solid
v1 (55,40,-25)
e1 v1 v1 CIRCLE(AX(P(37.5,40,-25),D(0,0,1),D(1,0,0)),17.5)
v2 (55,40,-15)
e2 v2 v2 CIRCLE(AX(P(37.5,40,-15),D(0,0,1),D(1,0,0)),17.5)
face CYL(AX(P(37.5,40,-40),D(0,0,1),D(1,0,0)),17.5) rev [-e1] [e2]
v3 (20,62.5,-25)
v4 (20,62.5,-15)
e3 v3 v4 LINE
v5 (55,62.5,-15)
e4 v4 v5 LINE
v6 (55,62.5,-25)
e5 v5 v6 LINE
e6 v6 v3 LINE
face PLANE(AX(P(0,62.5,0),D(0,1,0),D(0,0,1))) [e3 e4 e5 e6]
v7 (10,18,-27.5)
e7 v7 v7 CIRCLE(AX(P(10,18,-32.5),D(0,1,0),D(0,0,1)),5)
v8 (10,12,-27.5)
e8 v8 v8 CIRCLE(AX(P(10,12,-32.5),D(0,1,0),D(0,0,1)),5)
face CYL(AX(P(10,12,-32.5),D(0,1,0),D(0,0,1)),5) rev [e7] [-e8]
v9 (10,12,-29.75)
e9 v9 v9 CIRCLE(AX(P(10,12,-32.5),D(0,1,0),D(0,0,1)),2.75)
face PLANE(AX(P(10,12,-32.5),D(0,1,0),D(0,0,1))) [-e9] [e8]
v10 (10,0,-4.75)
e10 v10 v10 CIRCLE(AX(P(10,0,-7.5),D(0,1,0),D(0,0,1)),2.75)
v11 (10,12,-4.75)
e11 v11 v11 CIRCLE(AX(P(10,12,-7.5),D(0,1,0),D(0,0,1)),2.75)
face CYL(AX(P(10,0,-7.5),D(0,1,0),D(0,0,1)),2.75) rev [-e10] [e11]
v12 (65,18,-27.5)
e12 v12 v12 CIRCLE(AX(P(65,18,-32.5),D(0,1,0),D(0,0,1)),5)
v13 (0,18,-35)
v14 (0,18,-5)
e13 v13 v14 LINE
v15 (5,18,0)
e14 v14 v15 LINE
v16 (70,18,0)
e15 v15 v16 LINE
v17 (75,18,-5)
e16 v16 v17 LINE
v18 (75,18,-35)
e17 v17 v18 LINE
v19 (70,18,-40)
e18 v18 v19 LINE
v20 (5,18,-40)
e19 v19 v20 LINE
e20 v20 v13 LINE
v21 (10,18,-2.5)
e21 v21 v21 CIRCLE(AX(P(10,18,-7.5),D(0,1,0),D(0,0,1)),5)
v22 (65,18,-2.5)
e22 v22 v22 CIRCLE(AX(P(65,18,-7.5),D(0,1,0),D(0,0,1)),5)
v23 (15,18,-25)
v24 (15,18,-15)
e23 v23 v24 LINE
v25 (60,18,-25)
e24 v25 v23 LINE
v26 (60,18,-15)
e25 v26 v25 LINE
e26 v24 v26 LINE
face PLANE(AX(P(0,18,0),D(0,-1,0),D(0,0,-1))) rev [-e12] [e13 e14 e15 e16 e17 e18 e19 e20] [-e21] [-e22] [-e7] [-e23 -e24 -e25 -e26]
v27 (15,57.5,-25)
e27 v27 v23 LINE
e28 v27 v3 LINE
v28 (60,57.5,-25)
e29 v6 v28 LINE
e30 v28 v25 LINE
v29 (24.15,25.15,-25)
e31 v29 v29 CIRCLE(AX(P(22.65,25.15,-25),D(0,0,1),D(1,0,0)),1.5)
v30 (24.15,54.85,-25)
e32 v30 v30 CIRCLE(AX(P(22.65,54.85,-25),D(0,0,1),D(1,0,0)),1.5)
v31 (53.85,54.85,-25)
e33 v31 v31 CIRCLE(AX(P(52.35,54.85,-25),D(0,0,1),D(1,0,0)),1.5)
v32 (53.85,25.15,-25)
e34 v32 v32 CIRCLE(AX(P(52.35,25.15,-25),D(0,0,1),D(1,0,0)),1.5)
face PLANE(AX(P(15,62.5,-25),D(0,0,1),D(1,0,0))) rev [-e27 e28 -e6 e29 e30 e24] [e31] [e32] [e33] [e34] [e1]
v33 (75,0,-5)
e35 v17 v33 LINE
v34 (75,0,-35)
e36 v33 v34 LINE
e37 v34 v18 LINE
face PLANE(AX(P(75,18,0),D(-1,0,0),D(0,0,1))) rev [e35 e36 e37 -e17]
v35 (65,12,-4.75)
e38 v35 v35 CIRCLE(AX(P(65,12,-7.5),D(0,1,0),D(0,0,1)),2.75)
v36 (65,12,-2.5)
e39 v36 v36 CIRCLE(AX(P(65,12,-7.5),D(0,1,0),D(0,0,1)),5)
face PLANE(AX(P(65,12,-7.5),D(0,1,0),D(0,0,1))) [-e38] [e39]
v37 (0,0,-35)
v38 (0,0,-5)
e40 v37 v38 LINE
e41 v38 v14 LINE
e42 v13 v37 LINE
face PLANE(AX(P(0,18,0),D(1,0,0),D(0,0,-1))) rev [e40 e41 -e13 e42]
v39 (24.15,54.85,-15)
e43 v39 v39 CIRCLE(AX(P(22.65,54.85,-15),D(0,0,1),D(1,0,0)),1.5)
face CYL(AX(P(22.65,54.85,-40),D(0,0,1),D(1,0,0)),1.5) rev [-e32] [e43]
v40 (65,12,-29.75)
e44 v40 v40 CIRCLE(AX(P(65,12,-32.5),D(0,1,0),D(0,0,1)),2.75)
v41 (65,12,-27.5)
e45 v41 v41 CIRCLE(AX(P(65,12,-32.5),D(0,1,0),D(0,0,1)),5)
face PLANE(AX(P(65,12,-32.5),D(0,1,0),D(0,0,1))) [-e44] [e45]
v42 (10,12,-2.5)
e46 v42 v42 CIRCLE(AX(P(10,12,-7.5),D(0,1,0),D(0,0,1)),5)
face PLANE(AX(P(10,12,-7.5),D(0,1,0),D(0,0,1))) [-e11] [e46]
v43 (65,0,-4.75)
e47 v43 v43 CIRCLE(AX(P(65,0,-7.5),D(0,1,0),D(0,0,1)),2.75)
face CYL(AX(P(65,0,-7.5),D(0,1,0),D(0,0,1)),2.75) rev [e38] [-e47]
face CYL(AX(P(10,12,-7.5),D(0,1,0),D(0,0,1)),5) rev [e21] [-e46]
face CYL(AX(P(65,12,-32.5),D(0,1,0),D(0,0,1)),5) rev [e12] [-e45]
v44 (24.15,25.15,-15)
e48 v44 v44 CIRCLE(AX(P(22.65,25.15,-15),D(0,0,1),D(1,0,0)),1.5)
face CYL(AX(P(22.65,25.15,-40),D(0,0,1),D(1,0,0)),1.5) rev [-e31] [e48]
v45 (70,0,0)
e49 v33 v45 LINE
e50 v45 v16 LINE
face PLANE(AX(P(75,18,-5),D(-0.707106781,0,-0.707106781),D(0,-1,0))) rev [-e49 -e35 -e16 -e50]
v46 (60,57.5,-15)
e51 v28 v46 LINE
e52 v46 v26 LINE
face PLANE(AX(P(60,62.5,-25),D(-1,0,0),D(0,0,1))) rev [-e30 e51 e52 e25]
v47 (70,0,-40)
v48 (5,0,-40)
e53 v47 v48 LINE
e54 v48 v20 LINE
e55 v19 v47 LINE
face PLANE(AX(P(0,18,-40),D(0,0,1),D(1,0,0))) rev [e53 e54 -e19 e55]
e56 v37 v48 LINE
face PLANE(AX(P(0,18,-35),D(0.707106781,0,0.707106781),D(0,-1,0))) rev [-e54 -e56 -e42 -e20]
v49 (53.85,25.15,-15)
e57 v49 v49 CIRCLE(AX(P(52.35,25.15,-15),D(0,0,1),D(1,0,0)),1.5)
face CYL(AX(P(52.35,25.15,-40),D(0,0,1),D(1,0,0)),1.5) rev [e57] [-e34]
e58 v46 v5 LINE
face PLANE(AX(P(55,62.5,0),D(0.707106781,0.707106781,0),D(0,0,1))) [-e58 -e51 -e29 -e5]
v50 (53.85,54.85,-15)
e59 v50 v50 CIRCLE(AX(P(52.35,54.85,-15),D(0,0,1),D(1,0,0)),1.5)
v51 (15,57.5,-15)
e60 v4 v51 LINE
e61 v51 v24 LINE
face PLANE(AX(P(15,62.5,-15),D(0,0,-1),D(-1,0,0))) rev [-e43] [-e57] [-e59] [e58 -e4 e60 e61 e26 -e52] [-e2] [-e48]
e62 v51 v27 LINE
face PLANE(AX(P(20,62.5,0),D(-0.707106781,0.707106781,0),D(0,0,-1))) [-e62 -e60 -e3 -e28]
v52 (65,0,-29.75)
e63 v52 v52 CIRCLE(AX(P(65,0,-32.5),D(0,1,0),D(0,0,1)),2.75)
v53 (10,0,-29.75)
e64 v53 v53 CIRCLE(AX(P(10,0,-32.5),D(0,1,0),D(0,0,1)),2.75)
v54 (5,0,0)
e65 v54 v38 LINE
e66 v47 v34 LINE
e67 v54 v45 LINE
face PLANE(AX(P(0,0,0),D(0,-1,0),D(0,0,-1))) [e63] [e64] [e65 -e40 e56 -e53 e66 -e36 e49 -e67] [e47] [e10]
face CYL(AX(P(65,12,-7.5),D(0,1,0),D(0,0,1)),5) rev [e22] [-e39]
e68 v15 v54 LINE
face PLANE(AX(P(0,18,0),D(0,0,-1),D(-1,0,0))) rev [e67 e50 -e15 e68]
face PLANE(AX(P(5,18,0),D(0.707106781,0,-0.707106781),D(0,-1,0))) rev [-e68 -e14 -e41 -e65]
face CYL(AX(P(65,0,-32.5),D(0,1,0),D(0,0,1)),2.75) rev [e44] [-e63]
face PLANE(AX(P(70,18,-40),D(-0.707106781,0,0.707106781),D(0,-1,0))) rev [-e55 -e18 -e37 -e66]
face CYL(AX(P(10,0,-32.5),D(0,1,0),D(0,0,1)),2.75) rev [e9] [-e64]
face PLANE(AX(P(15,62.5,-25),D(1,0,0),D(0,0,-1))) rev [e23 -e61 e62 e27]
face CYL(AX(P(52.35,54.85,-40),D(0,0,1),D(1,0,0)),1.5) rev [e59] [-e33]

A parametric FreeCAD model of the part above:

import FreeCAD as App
import Part
import Sketcher
from FreeCAD import Vector


def edges_at(feature, points):
    """Names of the edges that pass closest to the given points."""
    edges = feature.Shape.Edges
    near = lambda p: min(range(len(edges)), key=lambda i: edges[i].distToShape(Part.Vertex(*p))[0])
    return sorted({f"Edge{near(p) + 1}" for p in points})


def add_polygon(sketch, points):
    """Adds a closed chain of lines whose ends are joined by coincident constraints."""
    first, n = sketch.GeometryCount, len(points)
    for a, b in zip(points, points[1:] + points[:1]):
        sketch.addGeometry(Part.LineSegment(App.Vector(*a, 0), App.Vector(*b, 0)), False)
    for i in range(n):
        sketch.addConstraint(Sketcher.Constraint("Coincident", first + i, 2, first + (i + 1) % n, 1))

doc = App.newDocument("Part")
body = doc.addObject("PartDesign::Body", "Body")

# Sketch on XZ plane
sketch1 = body.newObject("Sketcher::SketchObject", "Sketch")
sketch1.AttachmentSupport = (doc.getObject("XZ_Plane"), [""])
sketch1.MapMode = "FlatFace"
add_polygon(sketch1, [(0, -40), (0, 0), (75, 0), (75, -40)])  # lines 0-3
sketch1.addConstraint(Sketcher.Constraint("Vertical", 0))
sketch1.addConstraint(Sketcher.Constraint("Horizontal", 1))
sketch1.addConstraint(Sketcher.Constraint("Vertical", 2))
sketch1.addConstraint(Sketcher.Constraint("Horizontal", 3))
sketch1.addConstraint(Sketcher.Constraint("Coincident", 0, 2, -1, 1))
sketch1.addConstraint(Sketcher.Constraint("DistanceX", 1, 1, 1, 2, 75.0))
sketch1.addConstraint(Sketcher.Constraint("DistanceY", 0, 1, 0, 2, 40.0))
pad1 = body.newObject("PartDesign::Pad", "Pad")
pad1.Profile = sketch1
pad1.Length = 18
pad1.Reversed = True
doc.recompute()

chamfer = body.newObject("PartDesign::Chamfer", "Chamfer")
chamfer.Base = (pad1, edges_at(pad1, [
    (0, 9, -40),
    (75, 9, -40),
    (75, 9, 0),
    (0, 9, 0),
]))
chamfer.Size = 5

# Sketch on XZ plane
sketch2 = body.newObject("Sketcher::SketchObject", "Sketch001")
sketch2.AttachmentSupport = (doc.getObject("XZ_Plane"), [""])
sketch2.MapMode = "FlatFace"
sketch2.AttachmentOffset = App.Placement(Vector(0, 0, -18), App.Rotation())
add_polygon(sketch2, [(15, -25), (15, -15), (60, -15), (60, -25)])  # lines 0-3
sketch2.addConstraint(Sketcher.Constraint("Vertical", 0))
sketch2.addConstraint(Sketcher.Constraint("Horizontal", 1))
sketch2.addConstraint(Sketcher.Constraint("Vertical", 2))
sketch2.addConstraint(Sketcher.Constraint("Horizontal", 3))
sketch2.addConstraint(Sketcher.Constraint("DistanceX", 1, 1, 1, 2, 45.0))
sketch2.addConstraint(Sketcher.Constraint("DistanceY", 0, 1, 0, 2, 10.0))
sketch2.addConstraint(Sketcher.Constraint("DistanceX", -1, 1, 0, 2, 15.0))
sketch2.addConstraint(Sketcher.Constraint("DistanceY", 0, 2, -1, 1, 15.0))
pad2 = body.newObject("PartDesign::Pad", "Pad001")
pad2.Profile = sketch2
pad2.Length = 44.5
pad2.Reversed = True
doc.recompute()

chamfer2 = body.newObject("PartDesign::Chamfer", "Chamfer001")
chamfer2.Base = (pad2, edges_at(pad2, [(15, 62.5, -20), (60, 62.5, -20)]))
chamfer2.Size = 5

# Sketch on XY plane
sketch3 = body.newObject("Sketcher::SketchObject", "Sketch002")
sketch3.AttachmentSupport = (doc.getObject("XY_Plane"), [""])
sketch3.MapMode = "FlatFace"
sketch3.AttachmentOffset = App.Placement(Vector(0, 0, -15), App.Rotation())
sketch3.addGeometry(Part.Circle(Vector(38, 40, 0), Vector(0, 0, 1), 18), False)
sketch3.addConstraint(Sketcher.Constraint("Diameter", 0, 35.0))
sketch3.addConstraint(Sketcher.Constraint("DistanceY", -1, 1, 0, 3, 40.0))
sketch3.addConstraint(Sketcher.Constraint("DistanceX", -1, 1, 0, 3, 37.5))
pocket1 = body.newObject("PartDesign::Pocket", "Pocket")
pocket1.Profile = sketch3
pocket1.Type = "ThroughAll"

# Sketch on XY plane
sketch4 = body.newObject("Sketcher::SketchObject", "Sketch003")
sketch4.AttachmentSupport = (doc.getObject("XY_Plane"), [""])
sketch4.MapMode = "FlatFace"
sketch4.AttachmentOffset = App.Placement(Vector(0, 0, -15), App.Rotation())
sketch4.addGeometry(Part.Circle(Vector(22.6, 54.9, 0), Vector(0, 0, 1), 1.5), False)
sketch4.addGeometry(Part.Circle(Vector(52.4, 54.9, 0), Vector(0, 0, 1), 1.5), False)
sketch4.addGeometry(Part.Circle(Vector(52.4, 25.1, 0), Vector(0, 0, 1), 1.5), False)
sketch4.addGeometry(Part.Circle(Vector(22.6, 25.1, 0), Vector(0, 0, 1), 1.5), False)
sketch4.addConstraint(Sketcher.Constraint("Equal", 0, 1))
sketch4.addConstraint(Sketcher.Constraint("Equal", 1, 2))
sketch4.addConstraint(Sketcher.Constraint("Equal", 2, 3))
sketch4.addConstraint(Sketcher.Constraint("Horizontal", 0, 3, 1, 3))
sketch4.addConstraint(Sketcher.Constraint("Horizontal", 2, 3, 3, 3))
sketch4.addConstraint(Sketcher.Constraint("Vertical", 1, 3, 2, 3))
sketch4.addConstraint(Sketcher.Constraint("Vertical", 0, 3, 3, 3))
sketch4.addConstraint(Sketcher.Constraint("Diameter", 0, 3.0))
sketch4.addConstraint(Sketcher.Constraint("DistanceX", 0, 3, 1, 3, 29.7))
sketch4.addConstraint(Sketcher.Constraint("DistanceY", 2, 3, 1, 3, 29.7))
sketch4.addConstraint(Sketcher.Constraint("DistanceX", -1, 1, 0, 3, 22.65))
sketch4.addConstraint(Sketcher.Constraint("DistanceY", -1, 1, 0, 3, 54.85))
pocket2 = body.newObject("PartDesign::Pocket", "Pocket001")
pocket2.Profile = sketch4
pocket2.Type = "ThroughAll"

# Sketch on XZ plane
sketch5 = body.newObject("Sketcher::SketchObject", "Sketch004")
sketch5.AttachmentSupport = (doc.getObject("XZ_Plane"), [""])
sketch5.MapMode = "FlatFace"
sketch5.AttachmentOffset = App.Placement(Vector(0, 0, -18), App.Rotation())
sketch5.addGeometry(Part.Circle(Vector(10, -32, 0), Vector(0, 0, 1), 5), False)
sketch5.addGeometry(Part.Circle(Vector(10, -8, 0), Vector(0, 0, 1), 5), False)
sketch5.addGeometry(Part.Circle(Vector(65, -8, 0), Vector(0, 0, 1), 5), False)
sketch5.addGeometry(Part.Circle(Vector(65, -32, 0), Vector(0, 0, 1), 5), False)
sketch5.addConstraint(Sketcher.Constraint("Equal", 0, 1))
sketch5.addConstraint(Sketcher.Constraint("Equal", 1, 2))
sketch5.addConstraint(Sketcher.Constraint("Equal", 2, 3))
sketch5.addConstraint(Sketcher.Constraint("Horizontal", 1, 3, 2, 3))
sketch5.addConstraint(Sketcher.Constraint("Horizontal", 0, 3, 3, 3))
sketch5.addConstraint(Sketcher.Constraint("Vertical", 0, 3, 1, 3))
sketch5.addConstraint(Sketcher.Constraint("Vertical", 2, 3, 3, 3))
sketch5.addConstraint(Sketcher.Constraint("Diameter", 0, 10.0))
sketch5.addConstraint(Sketcher.Constraint("DistanceX", -1, 1, 0, 3, 10.0))
sketch5.addConstraint(Sketcher.Constraint("DistanceX", -1, 1, 2, 3, 65.0))
sketch5.addConstraint(Sketcher.Constraint("DistanceY", 0, 3, 1, 3, 25.0))
sketch5.addConstraint(Sketcher.Constraint("DistanceY", 0, 3, -1, 1, 32.5))
pocket3 = body.newObject("PartDesign::Pocket", "Pocket002")
pocket3.Profile = sketch5
pocket3.Length = 6
pocket3.Reversed = True

# Sketch on XZ plane
sketch6 = body.newObject("Sketcher::SketchObject", "Sketch005")
sketch6.AttachmentSupport = (doc.getObject("XZ_Plane"), [""])
sketch6.MapMode = "FlatFace"
sketch6.AttachmentOffset = App.Placement(Vector(0, 0, -12), App.Rotation())
sketch6.addGeometry(Part.Circle(Vector(10, -7.5, 0), Vector(0, 0, 1), 2.8), False)
sketch6.addGeometry(Part.Circle(Vector(10, -32.5, 0), Vector(0, 0, 1), 2.8), False)
sketch6.addGeometry(Part.Circle(Vector(65, -7.5, 0), Vector(0, 0, 1), 2.8), False)
sketch6.addGeometry(Part.Circle(Vector(65, -32.5, 0), Vector(0, 0, 1), 2.8), False)
sketch6.addConstraint(Sketcher.Constraint("Equal", 0, 1))
sketch6.addConstraint(Sketcher.Constraint("Equal", 1, 2))
sketch6.addConstraint(Sketcher.Constraint("Equal", 2, 3))
sketch6.addConstraint(Sketcher.Constraint("Horizontal", 0, 3, 2, 3))
sketch6.addConstraint(Sketcher.Constraint("Horizontal", 1, 3, 3, 3))
sketch6.addConstraint(Sketcher.Constraint("Vertical", 0, 3, 1, 3))
sketch6.addConstraint(Sketcher.Constraint("Vertical", 2, 3, 3, 3))
sketch6.addConstraint(Sketcher.Constraint("Diameter", 0, 5.5))
sketch6.addConstraint(Sketcher.Constraint("DistanceX", -1, 1, 0, 3, 10.0))
sketch6.addConstraint(Sketcher.Constraint("DistanceX", -1, 1, 2, 3, 65.0))
sketch6.addConstraint(Sketcher.Constraint("DistanceY", 1, 3, 0, 3, 25.0))
sketch6.addConstraint(Sketcher.Constraint("DistanceY", 0, 3, -1, 1, 7.5))
pocket4 = body.newObject("PartDesign::Pocket", "Pocket003")
pocket4.Profile = sketch6
pocket4.Type = "ThroughAll"
pocket4.Reversed = True

doc.recompute()
